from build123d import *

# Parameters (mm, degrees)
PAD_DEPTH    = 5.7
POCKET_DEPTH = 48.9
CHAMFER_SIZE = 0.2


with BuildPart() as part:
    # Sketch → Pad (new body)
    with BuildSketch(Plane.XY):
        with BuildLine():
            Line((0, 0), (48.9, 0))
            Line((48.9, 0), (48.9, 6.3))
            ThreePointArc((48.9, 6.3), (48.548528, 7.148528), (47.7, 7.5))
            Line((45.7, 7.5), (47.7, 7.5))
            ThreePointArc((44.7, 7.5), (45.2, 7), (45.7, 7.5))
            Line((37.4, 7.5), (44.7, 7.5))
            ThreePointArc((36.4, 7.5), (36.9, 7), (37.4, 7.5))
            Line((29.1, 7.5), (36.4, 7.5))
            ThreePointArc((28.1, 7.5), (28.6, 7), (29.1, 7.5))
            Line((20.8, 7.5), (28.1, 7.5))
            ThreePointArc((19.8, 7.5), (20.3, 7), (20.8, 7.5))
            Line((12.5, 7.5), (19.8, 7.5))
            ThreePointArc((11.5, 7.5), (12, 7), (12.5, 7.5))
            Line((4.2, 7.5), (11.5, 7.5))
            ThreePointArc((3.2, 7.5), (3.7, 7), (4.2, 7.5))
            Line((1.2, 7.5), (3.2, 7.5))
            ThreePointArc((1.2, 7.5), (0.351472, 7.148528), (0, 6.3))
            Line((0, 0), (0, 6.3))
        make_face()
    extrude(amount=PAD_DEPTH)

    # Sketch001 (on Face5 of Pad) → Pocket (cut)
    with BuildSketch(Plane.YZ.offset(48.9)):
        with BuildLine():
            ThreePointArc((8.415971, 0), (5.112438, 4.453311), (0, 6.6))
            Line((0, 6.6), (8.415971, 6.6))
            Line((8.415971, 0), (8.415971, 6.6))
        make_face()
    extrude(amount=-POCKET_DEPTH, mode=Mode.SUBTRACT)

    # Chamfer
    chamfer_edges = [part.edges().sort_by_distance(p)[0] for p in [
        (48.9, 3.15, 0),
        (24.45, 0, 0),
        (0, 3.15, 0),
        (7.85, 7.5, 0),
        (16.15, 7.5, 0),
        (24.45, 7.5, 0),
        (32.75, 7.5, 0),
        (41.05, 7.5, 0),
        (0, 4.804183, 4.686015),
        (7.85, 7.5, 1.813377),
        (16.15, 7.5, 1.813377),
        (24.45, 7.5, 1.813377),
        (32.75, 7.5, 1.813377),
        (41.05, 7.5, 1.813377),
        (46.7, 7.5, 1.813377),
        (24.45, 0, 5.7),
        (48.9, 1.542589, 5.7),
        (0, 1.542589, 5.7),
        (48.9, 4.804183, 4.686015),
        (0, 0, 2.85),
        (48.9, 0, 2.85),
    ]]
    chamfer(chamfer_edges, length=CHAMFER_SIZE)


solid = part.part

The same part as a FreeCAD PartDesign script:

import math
import FreeCAD as App
import Part
import Sketcher
from FreeCAD import Vector


def edges_at(feature, points):
    """Names of the edges that pass closest to the given points."""
    edges = feature.Shape.Edges
    near = lambda p: min(range(len(edges)), key=lambda i: edges[i].distToShape(Part.Vertex(*p))[0])
    return sorted({f"Edge{near(p) + 1}" for p in points})

doc = App.newDocument("Part")
body = doc.addObject("PartDesign::Body", "Body")

# Sketch on XY plane
sketch1 = doc.addObject("Sketcher::SketchObject", "Sketch")
body.addObject(sketch1)
sketch1.AttachmentSupport = (doc.XY_Plane, [""])
sketch1.MapMode = "FlatFace"
sketch1.addGeometry([
    Part.LineSegment(Vector(0, 0, 0), Vector(48.9, 0, 0)),  # 0
    Part.LineSegment(Vector(48.9, 0, 0), Vector(48.9, 6.3, 0)),  # 1
    Part.ArcOfCircle(Part.Circle(Vector(47.7, 6.3, 0), Vector(0, 0, 1), 1.2), math.radians(0.000022), math.radians(89.999978)),  # 2
    Part.LineSegment(Vector(47.7, 7.5, 0), Vector(45.7, 7.5, 0)),  # 3
    Part.ArcOfCircle(Part.Circle(Vector(45.2, 7.5, 0), Vector(0, 0, 1), 0.5), math.radians(180), math.radians(360)),  # 4
    Part.LineSegment(Vector(44.7, 7.5, 0), Vector(37.4, 7.5, 0)),  # 5
    Part.ArcOfCircle(Part.Circle(Vector(36.9, 7.5, 0), Vector(0, 0, 1), 0.5), math.radians(180), math.radians(360)),  # 6
    Part.LineSegment(Vector(36.4, 7.5, 0), Vector(29.1, 7.5, 0)),  # 7
    Part.ArcOfCircle(Part.Circle(Vector(28.6, 7.5, 0), Vector(0, 0, 1), 0.5), math.radians(180), math.radians(360)),  # 8
    Part.LineSegment(Vector(28.1, 7.5, 0), Vector(20.8, 7.5, 0)),  # 9
    Part.ArcOfCircle(Part.Circle(Vector(20.3, 7.5, 0), Vector(0, 0, 1), 0.5), math.radians(180), math.radians(360)),  # 10
    Part.LineSegment(Vector(19.8, 7.5, 0), Vector(12.5, 7.5, 0)),  # 11
    Part.ArcOfCircle(Part.Circle(Vector(12, 7.5, 0), Vector(0, 0, 1), 0.5), math.radians(180), math.radians(360)),  # 12
    Part.LineSegment(Vector(11.5, 7.5, 0), Vector(4.2, 7.5, 0)),  # 13
    Part.ArcOfCircle(Part.Circle(Vector(3.7, 7.5, 0), Vector(0, 0, 1), 0.5), math.radians(180), math.radians(360)),  # 14
    Part.LineSegment(Vector(3.2, 7.5, 0), Vector(1.2, 7.5, 0)),  # 15
    Part.ArcOfCircle(Part.Circle(Vector(1.2, 6.3, 0), Vector(0, 0, 1), 1.2), math.radians(90.000022), math.radians(179.999978)),  # 16
    Part.LineSegment(Vector(0, 6.3, 0), Vector(0, 0, 0)),  # 17
], False)
sketch1.addConstraint([
    Sketcher.Constraint("Coincident", 0, 2, 1, 1),
    Sketcher.Constraint("Tangent", 1, 2, 2, 1),
    Sketcher.Constraint("Tangent", 2, 2, 3, 1),
    Sketcher.Constraint("Coincident", 3, 2, 4, 2),
    Sketcher.Constraint("Coincident", 4, 1, 5, 1),
    Sketcher.Constraint("Coincident", 5, 2, 6, 2),
    Sketcher.Constraint("Coincident", 6, 1, 7, 1),
    Sketcher.Constraint("Coincident", 7, 2, 8, 2),
    Sketcher.Constraint("Coincident", 8, 1, 9, 1),
    Sketcher.Constraint("Coincident", 9, 2, 10, 2),
    Sketcher.Constraint("Coincident", 10, 1, 11, 1),
    Sketcher.Constraint("Coincident", 11, 2, 12, 2),
    Sketcher.Constraint("Coincident", 12, 1, 13, 1),
    Sketcher.Constraint("Coincident", 13, 2, 14, 2),
    Sketcher.Constraint("Coincident", 14, 1, 15, 1),
    Sketcher.Constraint("Tangent", 15, 2, 16, 1),
    Sketcher.Constraint("Tangent", 16, 2, 17, 1),
    Sketcher.Constraint("Coincident", 17, 2, 0, 1),
    Sketcher.Constraint("Horizontal", 0),
    Sketcher.Constraint("Vertical", 1),
    Sketcher.Constraint("Horizontal", 3),
    Sketcher.Constraint("Horizontal", 5),
    Sketcher.Constraint("Horizontal", 7),
    Sketcher.Constraint("Horizontal", 9),
    Sketcher.Constraint("Horizontal", 11),
    Sketcher.Constraint("Horizontal", 13),
    Sketcher.Constraint("Horizontal", 15),
    Sketcher.Constraint("Vertical", 17),
    Sketcher.Constraint("Coincident", 17, 2, -1, 1),
    Sketcher.Constraint("Equal", 4, 6),
    Sketcher.Constraint("Equal", 6, 8),
    Sketcher.Constraint("Equal", 8, 10),
    Sketcher.Constraint("Equal", 10, 12),
    Sketcher.Constraint("Equal", 12, 14),
    Sketcher.Constraint("Equal", 2, 16),
    Sketcher.Constraint("Horizontal", 4, 3, 6, 3),
    Sketcher.Constraint("Horizontal", 6, 3, 8, 3),
    Sketcher.Constraint("Horizontal", 8, 3, 10, 3),
    Sketcher.Constraint("Horizontal", 10, 3, 12, 3),
    Sketcher.Constraint("Horizontal", 12, 3, 14, 3),
    Sketcher.Constraint("Horizontal", 2, 3, 16, 3),
    Sketcher.Constraint("Horizontal", 14, 3, 2, 2),
    Sketcher.Constraint("Horizontal", 3, 2, 4, 1),
    Sketcher.Constraint("Horizontal", 5, 2, 6, 1),
    Sketcher.Constraint("Horizontal", 7, 2, 8, 1),
    Sketcher.Constraint("Horizontal", 9, 2, 10, 1),
    Sketcher.Constraint("Horizontal", 11, 2, 12, 1),
    Sketcher.Constraint("Equal", 5, 7),
    Sketcher.Constraint("Equal", 7, 9),
    Sketcher.Constraint("Equal", 9, 11),
    Sketcher.Constraint("Equal", 11, 13),
    Sketcher.Constraint("Equal", 3, 15),
    Sketcher.Constraint("Radius", 2, 1.2),
    Sketcher.Constraint("Radius", 4, 0.5),
    Sketcher.Constraint("DistanceX", 3, 2, 3, 1, 2.0),
    Sketcher.Constraint("DistanceX", 0, 1, 0, 2, 48.9),
    Sketcher.Constraint("DistanceY", 1, 1, 1, 2, 6.3),
])
pad1 = doc.addObject("PartDesign::Pad", "Pad")
body.addObject(pad1)
pad1.Profile = sketch1
pad1.Length = 5.7

# Sketch on YZ plane
sketch2 = doc.addObject("Sketcher::SketchObject", "Sketch001")
body.addObject(sketch2)
sketch2.AttachmentSupport = (doc.YZ_Plane, [""])
sketch2.MapMode = "FlatFace"
sketch2.AttachmentOffset = App.Placement(Vector(0, 0, 48.9), App.Rotation())
sketch2.addGeometry([
    Part.ArcOfCircle(Part.Circle(Vector(-1.360001, -3.800003, 0), Vector(0, 0, 1), 10.488549), math.radians(21.241522), math.radians(82.549745)),
    Part.LineSegment(Vector(8.415971, 0, 0), Vector(8.415971, 6.6, 0)),
    Part.LineSegment(Vector(8.415971, 6.6, 0), Vector(0, 6.6, 0)),
], False)
sketch2.addConstraint([
    Sketcher.Constraint("Coincident", 0, 1, 1, 1),
    Sketcher.Constraint("Coincident", 1, 2, 2, 1),
    Sketcher.Constraint("Coincident", 2, 2, 0, 2),
    Sketcher.Constraint("Vertical", 1),
    Sketcher.Constraint("Horizontal", 2),
    Sketcher.Constraint("PointOnObject", 0, 1, -1),
    Sketcher.Constraint("PointOnObject", 2, 2, -2),
    Sketcher.Constraint("DistanceY", 1, 1, 1, 2, 6.6),
    Sketcher.Constraint("DistanceX", 0, 3, -1, 1, 1.360001),
    Sketcher.Constraint("Radius", 0, 10.488549),
])
pocket1 = doc.addObject("PartDesign::Pocket", "Pocket")
body.addObject(pocket1)
pocket1.Profile = sketch2
pocket1.Length = 48.9
doc.recompute()

chamfer = doc.addObject("PartDesign::Chamfer", "Chamfer")
body.addObject(chamfer)
chamfer.Base = (pocket1, edges_at(pocket1, [
    (48.9, 3.15, 0),
    (24.45, 0, 0),
    (0, 3.15, 0),
    (7.85, 7.5, 0),
    (16.15, 7.5, 0),
    (24.45, 7.5, 0),
    (32.75, 7.5, 0),
    (41.05, 7.5, 0),
    (0, 4.804, 4.686),
    (7.85, 7.5, 1.813),
    (16.15, 7.5, 1.813),
    (24.45, 7.5, 1.813),
    (32.75, 7.5, 1.813),
    (41.05, 7.5, 1.813),
    (46.7, 7.5, 1.813),
    (24.45, 0, 5.7),
    (48.9, 1.543, 5.7),
    (0, 1.543, 5.7),
    (48.9, 4.804, 4.686),
    (0, 0, 2.85),
    (48.9, 0, 2.85),
]))
chamfer.Size = 0.2

doc.recompute()
